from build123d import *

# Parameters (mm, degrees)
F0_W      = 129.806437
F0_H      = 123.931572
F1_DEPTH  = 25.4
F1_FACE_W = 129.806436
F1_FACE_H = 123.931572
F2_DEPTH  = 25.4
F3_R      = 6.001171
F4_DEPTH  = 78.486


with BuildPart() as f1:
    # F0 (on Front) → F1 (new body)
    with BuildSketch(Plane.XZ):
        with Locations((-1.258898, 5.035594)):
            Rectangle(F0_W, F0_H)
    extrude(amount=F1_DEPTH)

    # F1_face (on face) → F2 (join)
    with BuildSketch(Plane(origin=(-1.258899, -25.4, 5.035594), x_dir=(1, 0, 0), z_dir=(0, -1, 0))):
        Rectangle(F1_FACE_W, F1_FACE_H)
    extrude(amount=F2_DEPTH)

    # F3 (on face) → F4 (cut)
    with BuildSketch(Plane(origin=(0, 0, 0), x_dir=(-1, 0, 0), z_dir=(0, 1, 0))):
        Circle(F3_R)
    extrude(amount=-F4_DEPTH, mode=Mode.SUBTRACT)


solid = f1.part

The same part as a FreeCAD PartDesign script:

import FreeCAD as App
import Part
import Sketcher

V = App.Vector


def add_polygon(sketch, points):
    """Adds a closed chain of lines whose ends are joined by coincident constraints."""
    first, n = sketch.GeometryCount, len(points)
    for a, b in zip(points, points[1:] + points[:1]):
        sketch.addGeometry(Part.LineSegment(App.Vector(*a, 0), App.Vector(*b, 0)), False)
    for i in range(n):
        sketch.addConstraint(Sketcher.Constraint("Coincident", first + i, 2, first + (i + 1) % n, 1))

doc = App.newDocument("Part")
params = doc.addObject("Spreadsheet::Sheet", "Params")
for row, (alias, value) in enumerate([
    ("pad1_length", "1 in"),
    ("pad2_length", "1 in"),
    ("pocket1_length", "3.09 in"),
], start=1):
    params.set(f"A{row}", alias)
    params.set(f"B{row}", "=" + value)
    params.setAlias(f"B{row}", alias)

body = doc.addObject("PartDesign::Body", "Body")

# Sketch on XZ plane
sketch1 = body.newObject("Sketcher::SketchObject", "Sketch")
sketch1.AttachmentSupport = (doc.getObject("XZ_Plane"), [""])
sketch1.MapMode = "FlatFace"
add_polygon(sketch1, [(-66, 67), (-66, -57), (64, -57), (64, 67)])  # lines 0-3
sketch1.addConstraint([
    Sketcher.Constraint("Vertical", 0),
    Sketcher.Constraint("Horizontal", 1),
    Sketcher.Constraint("Vertical", 2),
    Sketcher.Constraint("Horizontal", 3),
    Sketcher.Constraint("DistanceY", 0, 2, 0, 1, 123.931572),
    Sketcher.Constraint("DistanceX", 1, 1, 1, 2, 129.806437),
    Sketcher.Constraint("DistanceY", 0, 2, -1, 1, 56.930192),
    Sketcher.Constraint("DistanceX", -1, 1, 1, 2, 63.64432),
])
pad1 = body.newObject("PartDesign::Pad", "Pad")
pad1.Profile = sketch1
pad1.setExpression("Length", "Params.pad1_length")

# Sketch on XZ plane
sketch2 = body.newObject("Sketcher::SketchObject", "Sketch001")
sketch2.AttachmentSupport = (doc.getObject("XZ_Plane"), [""])
sketch2.MapMode = "FlatFace"
sketch2.AttachmentOffset = App.Placement(V(0, 0, 1 * 25.4), App.Rotation())
add_polygon(sketch2, [(-66, 67), (-66, -57), (64, -57), (64, 67)])  # lines 0-3
sketch2.addConstraint([
    Sketcher.Constraint("Vertical", 0),
    Sketcher.Constraint("Horizontal", 1),
    Sketcher.Constraint("Vertical", 2),
    Sketcher.Constraint("Horizontal", 3),
    Sketcher.Constraint("DistanceY", 0, 2, 0, 1, 123.931572),
    Sketcher.Constraint("DistanceX", 1, 1, 1, 2, 129.806436),
    Sketcher.Constraint("DistanceY", 0, 2, -1, 1, 56.930192),
    Sketcher.Constraint("DistanceX", -1, 1, 1, 2, 63.644319),
])
pad2 = body.newObject("PartDesign::Pad", "Pad001")
pad2.Profile = sketch2
pad2.setExpression("Length", "Params.pad2_length")

# Sketch on XZ plane
sketch3 = body.newObject("Sketcher::SketchObject", "Sketch002")
sketch3.AttachmentSupport = (doc.getObject("XZ_Plane"), [""])
sketch3.MapMode = "FlatFace"
sketch3.addGeometry(Part.Circle(V(0, 0, 0), V(0, 0, 1), 6), False)
sketch3.addConstraint([
    Sketcher.Constraint("Coincident", 0, 3, -1, 1),
    Sketcher.Constraint("Diameter", 0, 12.002342),
])
pocket1 = body.newObject("PartDesign::Pocket", "Pocket")
pocket1.Profile = sketch3
pocket1.setExpression("Length", "Params.pocket1_length")
pocket1.Reversed = True

doc.recompute()
